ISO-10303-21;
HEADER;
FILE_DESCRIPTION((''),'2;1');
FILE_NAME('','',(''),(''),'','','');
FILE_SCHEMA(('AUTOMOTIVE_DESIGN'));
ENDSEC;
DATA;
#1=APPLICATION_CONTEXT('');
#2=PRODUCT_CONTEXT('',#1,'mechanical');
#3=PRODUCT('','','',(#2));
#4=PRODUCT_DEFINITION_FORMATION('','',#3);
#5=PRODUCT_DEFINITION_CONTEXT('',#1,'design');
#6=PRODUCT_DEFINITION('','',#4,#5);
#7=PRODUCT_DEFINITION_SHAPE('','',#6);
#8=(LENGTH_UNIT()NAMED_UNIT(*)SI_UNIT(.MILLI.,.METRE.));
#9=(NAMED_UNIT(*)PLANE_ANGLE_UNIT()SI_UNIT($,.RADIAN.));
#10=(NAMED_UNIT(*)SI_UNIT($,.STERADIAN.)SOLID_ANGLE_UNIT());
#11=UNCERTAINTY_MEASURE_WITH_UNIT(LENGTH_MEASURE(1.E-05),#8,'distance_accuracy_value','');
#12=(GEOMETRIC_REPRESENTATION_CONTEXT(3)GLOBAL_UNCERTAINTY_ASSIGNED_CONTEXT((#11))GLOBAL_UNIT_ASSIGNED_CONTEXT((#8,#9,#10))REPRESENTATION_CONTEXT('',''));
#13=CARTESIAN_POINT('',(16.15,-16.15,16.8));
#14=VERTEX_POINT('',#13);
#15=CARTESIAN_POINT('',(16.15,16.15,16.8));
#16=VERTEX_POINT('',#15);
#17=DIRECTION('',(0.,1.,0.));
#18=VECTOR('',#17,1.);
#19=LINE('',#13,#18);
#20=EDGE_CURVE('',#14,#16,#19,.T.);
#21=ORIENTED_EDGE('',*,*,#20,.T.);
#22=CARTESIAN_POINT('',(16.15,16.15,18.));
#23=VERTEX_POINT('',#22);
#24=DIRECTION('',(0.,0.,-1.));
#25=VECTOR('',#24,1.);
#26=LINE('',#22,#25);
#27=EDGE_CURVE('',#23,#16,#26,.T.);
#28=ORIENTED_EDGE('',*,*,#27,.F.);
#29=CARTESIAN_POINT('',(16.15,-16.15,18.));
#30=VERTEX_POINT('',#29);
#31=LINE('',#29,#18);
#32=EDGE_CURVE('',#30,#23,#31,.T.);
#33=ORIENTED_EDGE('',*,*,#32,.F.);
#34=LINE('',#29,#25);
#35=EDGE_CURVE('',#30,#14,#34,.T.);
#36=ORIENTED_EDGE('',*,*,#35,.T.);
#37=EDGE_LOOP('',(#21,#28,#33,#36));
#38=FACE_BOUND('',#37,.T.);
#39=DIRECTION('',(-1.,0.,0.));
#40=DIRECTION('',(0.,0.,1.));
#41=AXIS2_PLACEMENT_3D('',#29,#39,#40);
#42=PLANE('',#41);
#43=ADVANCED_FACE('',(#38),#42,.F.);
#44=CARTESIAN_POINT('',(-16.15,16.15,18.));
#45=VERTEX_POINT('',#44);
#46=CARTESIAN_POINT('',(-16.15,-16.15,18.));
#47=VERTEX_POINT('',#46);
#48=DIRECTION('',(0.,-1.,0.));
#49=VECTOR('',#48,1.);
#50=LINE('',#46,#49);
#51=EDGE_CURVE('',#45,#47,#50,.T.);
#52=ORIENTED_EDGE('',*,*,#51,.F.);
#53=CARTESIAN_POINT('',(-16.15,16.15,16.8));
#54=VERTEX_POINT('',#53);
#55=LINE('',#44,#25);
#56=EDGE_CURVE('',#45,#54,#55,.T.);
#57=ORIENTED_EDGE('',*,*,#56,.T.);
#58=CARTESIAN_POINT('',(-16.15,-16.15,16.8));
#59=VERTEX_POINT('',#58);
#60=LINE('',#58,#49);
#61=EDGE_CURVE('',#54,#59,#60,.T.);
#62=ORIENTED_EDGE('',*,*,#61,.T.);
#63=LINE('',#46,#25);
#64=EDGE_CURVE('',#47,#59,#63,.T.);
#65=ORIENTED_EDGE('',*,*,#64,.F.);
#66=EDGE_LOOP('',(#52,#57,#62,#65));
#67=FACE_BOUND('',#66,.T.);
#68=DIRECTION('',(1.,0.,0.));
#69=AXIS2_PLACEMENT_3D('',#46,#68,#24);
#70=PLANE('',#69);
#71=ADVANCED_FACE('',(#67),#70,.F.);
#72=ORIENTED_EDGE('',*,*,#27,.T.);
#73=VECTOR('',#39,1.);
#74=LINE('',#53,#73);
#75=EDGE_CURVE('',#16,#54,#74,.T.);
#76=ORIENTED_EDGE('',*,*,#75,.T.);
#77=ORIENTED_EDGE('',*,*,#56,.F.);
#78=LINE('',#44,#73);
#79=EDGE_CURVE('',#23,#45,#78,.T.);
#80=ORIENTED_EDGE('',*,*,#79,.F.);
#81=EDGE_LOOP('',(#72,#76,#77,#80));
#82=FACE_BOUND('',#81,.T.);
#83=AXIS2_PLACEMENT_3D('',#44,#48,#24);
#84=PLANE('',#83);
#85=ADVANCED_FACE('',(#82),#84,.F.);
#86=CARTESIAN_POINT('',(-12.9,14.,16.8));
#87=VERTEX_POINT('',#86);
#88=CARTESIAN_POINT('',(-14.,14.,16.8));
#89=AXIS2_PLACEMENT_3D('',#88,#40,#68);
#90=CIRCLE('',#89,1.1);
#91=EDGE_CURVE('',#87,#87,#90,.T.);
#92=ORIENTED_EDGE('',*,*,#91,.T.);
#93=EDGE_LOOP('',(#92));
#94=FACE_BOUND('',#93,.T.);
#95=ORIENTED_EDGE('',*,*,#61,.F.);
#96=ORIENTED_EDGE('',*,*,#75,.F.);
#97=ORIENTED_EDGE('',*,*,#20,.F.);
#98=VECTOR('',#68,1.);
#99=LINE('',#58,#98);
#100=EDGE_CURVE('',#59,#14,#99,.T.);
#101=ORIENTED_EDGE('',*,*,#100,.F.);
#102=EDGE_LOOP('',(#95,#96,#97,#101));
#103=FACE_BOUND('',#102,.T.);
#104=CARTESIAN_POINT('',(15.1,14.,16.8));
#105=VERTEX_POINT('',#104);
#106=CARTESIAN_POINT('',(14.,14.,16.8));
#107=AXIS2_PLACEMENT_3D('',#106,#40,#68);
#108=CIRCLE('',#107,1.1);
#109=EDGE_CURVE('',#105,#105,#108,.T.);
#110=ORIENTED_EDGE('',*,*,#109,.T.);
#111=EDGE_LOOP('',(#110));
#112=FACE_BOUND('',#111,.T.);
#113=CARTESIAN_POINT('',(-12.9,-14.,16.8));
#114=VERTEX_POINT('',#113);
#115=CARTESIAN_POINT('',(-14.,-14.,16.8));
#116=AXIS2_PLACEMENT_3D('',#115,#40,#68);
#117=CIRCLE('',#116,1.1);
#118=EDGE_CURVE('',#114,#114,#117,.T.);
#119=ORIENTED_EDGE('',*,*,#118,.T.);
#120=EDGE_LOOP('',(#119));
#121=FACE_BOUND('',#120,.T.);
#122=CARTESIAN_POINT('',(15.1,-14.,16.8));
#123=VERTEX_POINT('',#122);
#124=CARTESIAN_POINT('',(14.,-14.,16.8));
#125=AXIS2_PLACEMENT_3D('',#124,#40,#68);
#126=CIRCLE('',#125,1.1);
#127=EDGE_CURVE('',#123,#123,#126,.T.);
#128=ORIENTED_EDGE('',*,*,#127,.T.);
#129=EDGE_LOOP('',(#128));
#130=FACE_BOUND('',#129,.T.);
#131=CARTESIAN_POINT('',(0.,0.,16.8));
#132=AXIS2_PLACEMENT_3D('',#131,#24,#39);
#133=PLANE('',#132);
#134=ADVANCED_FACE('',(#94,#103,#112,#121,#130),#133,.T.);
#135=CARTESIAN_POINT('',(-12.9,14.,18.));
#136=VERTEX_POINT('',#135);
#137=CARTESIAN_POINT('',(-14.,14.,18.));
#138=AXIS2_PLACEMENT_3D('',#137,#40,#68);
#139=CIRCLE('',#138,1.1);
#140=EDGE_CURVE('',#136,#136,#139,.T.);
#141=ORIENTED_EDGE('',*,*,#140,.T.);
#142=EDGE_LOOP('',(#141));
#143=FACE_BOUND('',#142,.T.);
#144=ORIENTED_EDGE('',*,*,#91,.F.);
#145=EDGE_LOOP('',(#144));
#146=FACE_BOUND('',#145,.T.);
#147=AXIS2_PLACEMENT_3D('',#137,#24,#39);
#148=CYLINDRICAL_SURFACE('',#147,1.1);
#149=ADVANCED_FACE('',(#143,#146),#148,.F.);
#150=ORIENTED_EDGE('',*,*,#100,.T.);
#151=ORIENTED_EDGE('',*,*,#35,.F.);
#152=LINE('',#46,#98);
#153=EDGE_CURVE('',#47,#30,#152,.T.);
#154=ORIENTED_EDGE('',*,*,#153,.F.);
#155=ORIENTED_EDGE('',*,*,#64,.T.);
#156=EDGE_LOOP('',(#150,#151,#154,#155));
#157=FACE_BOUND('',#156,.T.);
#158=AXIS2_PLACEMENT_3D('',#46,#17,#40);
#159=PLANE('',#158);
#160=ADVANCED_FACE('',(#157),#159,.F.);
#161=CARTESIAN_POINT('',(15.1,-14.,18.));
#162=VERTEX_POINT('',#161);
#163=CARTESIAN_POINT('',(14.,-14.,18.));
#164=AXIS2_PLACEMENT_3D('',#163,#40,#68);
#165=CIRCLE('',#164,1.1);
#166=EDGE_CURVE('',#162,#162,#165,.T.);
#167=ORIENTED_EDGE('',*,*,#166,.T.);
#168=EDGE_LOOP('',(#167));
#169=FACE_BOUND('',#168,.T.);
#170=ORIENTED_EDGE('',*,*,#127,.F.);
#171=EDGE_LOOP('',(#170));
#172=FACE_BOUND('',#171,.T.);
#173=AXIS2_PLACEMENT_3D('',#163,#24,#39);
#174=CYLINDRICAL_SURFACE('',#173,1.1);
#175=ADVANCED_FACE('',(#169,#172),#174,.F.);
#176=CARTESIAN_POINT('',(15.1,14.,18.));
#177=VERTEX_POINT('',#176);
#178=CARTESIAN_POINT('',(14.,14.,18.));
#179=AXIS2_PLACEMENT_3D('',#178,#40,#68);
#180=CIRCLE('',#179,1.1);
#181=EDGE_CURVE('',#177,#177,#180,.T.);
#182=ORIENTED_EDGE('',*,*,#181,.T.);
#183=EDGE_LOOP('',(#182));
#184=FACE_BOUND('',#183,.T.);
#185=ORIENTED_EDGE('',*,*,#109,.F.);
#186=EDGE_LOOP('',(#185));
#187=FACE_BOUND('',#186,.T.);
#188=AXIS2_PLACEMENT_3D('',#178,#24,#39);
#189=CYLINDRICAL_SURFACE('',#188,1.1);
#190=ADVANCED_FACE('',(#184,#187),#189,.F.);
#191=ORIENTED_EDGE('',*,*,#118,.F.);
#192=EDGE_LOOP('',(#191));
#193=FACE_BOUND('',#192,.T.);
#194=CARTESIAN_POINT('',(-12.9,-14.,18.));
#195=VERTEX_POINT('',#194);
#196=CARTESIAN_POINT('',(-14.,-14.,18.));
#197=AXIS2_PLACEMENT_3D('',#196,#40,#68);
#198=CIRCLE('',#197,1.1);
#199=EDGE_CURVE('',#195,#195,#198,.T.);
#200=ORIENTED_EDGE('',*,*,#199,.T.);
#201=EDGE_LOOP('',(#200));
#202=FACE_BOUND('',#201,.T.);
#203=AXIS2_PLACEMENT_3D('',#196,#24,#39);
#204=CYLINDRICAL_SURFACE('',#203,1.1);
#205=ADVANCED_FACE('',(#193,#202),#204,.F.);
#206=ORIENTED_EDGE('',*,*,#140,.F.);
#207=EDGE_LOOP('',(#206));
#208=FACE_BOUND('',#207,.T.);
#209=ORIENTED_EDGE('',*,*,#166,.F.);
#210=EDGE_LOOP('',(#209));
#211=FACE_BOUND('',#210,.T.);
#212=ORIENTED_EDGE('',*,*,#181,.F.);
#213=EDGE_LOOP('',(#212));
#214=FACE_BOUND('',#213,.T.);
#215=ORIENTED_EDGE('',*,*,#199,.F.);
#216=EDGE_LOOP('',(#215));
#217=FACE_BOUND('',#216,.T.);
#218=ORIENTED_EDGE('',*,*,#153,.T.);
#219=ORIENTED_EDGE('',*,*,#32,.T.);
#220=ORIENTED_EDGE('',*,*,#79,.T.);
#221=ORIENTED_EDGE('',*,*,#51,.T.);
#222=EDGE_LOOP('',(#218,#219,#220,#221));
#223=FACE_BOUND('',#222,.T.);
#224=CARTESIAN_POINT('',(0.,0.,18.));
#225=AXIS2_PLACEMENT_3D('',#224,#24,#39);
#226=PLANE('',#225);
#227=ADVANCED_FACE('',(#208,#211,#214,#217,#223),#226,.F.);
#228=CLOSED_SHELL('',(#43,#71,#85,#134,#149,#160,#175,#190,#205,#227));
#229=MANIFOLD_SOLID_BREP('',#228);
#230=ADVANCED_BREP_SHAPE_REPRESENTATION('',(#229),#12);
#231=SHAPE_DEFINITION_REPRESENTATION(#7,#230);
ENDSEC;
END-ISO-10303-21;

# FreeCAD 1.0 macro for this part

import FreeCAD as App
import Part
import Sketcher

V = App.Vector

doc = App.newDocument("Part")
body = doc.addObject("PartDesign::Body", "Body")

# Sketch on XY plane
sketch1 = body.newObject("Sketcher::SketchObject", "Sketch")
sketch1.AttachmentSupport = (doc.getObject("XY_Plane"), [""])
sketch1.MapMode = "FlatFace"
sketch1.AttachmentOffset = App.Placement(V(0, 0, 16.8), App.Rotation())
sketch1.addGeometry([
    Part.LineSegment(V(-16.15, 16.15, 0), V(-16.15, -16.15, 0)),
    Part.LineSegment(V(-16.15, -16.15, 0), V(16.15, -16.15, 0)),
    Part.LineSegment(V(16.15, -16.15, 0), V(16.15, 16.15, 0)),
    Part.LineSegment(V(16.15, 16.15, 0), V(-16.15, 16.15, 0)),
], False)
sketch1.addConstraint([
    Sketcher.Constraint("Coincident", 0, 2, 1, 1),
    Sketcher.Constraint("Coincident", 1, 2, 2, 1),
    Sketcher.Constraint("Coincident", 2, 2, 3, 1),
    Sketcher.Constraint("Coincident", 3, 2, 0, 1),
    Sketcher.Constraint("Vertical", 0),
    Sketcher.Constraint("Horizontal", 1),
    Sketcher.Constraint("Vertical", 2),
    Sketcher.Constraint("Horizontal", 3),
    Sketcher.Constraint("Symmetric", 0, 2, 2, 2, -1, 1),
    Sketcher.Constraint("Equal", 3, 0),
    Sketcher.Constraint("DistanceX", 1, 1, 1, 2, 32.3),
])
pad1 = body.newObject("PartDesign::Pad", "Pad")
pad1.Profile = sketch1
pad1.Length = 1.2

# Sketch on XY plane
sketch2 = body.newObject("Sketcher::SketchObject", "Sketch001")
sketch2.AttachmentSupport = (doc.getObject("XY_Plane"), [""])
sketch2.MapMode = "FlatFace"
sketch2.AttachmentOffset = App.Placement(V(0, 0, 16.8), App.Rotation())
sketch2.addGeometry([
    Part.Circle(V(-14, -14, 0), V(0, 0, 1), 1.1),
    Part.Circle(V(-14, 14, 0), V(0, 0, 1), 1.1),
    Part.Circle(V(14, -14, 0), V(0, 0, 1), 1.1),
    Part.Circle(V(14, 14, 0), V(0, 0, 1), 1.1),
], False)
sketch2.addConstraint([
    Sketcher.Constraint("Equal", 0, 1),
    Sketcher.Constraint("Equal", 1, 2),
    Sketcher.Constraint("Equal", 2, 3),
    Sketcher.Constraint("Symmetric", 1, 3, 2, 3, -1, 1),
    Sketcher.Constraint("Symmetric", 0, 3, 3, 3, -1, 1),
    Sketcher.Constraint("Symmetric", 0, 3, 2, 3, -2),
    Sketcher.Constraint("Diameter", 0, 2.2),
    Sketcher.Constraint("DistanceX", 0, 3, -1, 1, 14.0),
    Sketcher.Constraint("DistanceY", 0, 3, -1, 1, 14.0),
])
pocket1 = body.newObject("PartDesign::Pocket", "Pocket")
pocket1.Profile = sketch2
pocket1.Length = 1.2
pocket1.Reversed = True

doc.recompute()
